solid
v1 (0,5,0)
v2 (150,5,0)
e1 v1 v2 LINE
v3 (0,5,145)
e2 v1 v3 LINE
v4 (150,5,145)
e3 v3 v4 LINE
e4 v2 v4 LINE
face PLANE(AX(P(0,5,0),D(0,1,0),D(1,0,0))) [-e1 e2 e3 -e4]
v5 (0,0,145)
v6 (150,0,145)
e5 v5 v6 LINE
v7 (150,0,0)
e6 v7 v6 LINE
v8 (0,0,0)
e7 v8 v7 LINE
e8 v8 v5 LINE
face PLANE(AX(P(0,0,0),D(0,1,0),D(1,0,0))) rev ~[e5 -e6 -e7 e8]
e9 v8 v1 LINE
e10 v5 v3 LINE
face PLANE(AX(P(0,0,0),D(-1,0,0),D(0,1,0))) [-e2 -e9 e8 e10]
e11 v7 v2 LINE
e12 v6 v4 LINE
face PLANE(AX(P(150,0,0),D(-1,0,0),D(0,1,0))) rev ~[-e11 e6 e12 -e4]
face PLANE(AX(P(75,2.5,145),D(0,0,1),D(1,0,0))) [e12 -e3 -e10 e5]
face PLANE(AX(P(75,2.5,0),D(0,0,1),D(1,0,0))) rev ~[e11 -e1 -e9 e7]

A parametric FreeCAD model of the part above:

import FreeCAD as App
import Part
import Sketcher
from FreeCAD import Vector
Q = App.Units.Quantity


def add_polygon(sketch, points):
    """Adds a closed chain of lines whose ends are joined by coincident constraints."""
    first, n = sketch.GeometryCount, len(points)
    for a, b in zip(points, points[1:] + points[:1]):
        sketch.addGeometry(Part.LineSegment(App.Vector(*a, 0), App.Vector(*b, 0)), False)
    for i in range(n):
        sketch.addConstraint(Sketcher.Constraint("Coincident", first + i, 2, first + (i + 1) % n, 1))

doc = App.newDocument("Part")
body = doc.addObject("PartDesign::Body", "Body")

sketch1 = body.newObject("Sketcher::SketchObject", "Sketch")
sketch1.AttachmentSupport = (doc.getObject("XY_Plane"), [""])
sketch1.MapMode = "FlatFace"
add_polygon(sketch1, [(0, 5), (0, 0), (150, 0), (150, 5)])
sketch1.addConstraint([
    Sketcher.Constraint("Vertical", 0),
    Sketcher.Constraint("Horizontal", 1),
    Sketcher.Constraint("Vertical", 2),
    Sketcher.Constraint("Horizontal", 3),
    Sketcher.Constraint("Coincident", 0, 2, -1, 1),
    Sketcher.Constraint("DistanceX", 1, 1, 1, 2, Q("150 mm")),
    Sketcher.Constraint("DistanceY", 0, 2, 0, 1, Q("5 mm")),
])
pad1 = body.newObject("PartDesign::Pad", "Pad")
pad1.Profile = sketch1
pad1.Length = 145

doc.recompute()
